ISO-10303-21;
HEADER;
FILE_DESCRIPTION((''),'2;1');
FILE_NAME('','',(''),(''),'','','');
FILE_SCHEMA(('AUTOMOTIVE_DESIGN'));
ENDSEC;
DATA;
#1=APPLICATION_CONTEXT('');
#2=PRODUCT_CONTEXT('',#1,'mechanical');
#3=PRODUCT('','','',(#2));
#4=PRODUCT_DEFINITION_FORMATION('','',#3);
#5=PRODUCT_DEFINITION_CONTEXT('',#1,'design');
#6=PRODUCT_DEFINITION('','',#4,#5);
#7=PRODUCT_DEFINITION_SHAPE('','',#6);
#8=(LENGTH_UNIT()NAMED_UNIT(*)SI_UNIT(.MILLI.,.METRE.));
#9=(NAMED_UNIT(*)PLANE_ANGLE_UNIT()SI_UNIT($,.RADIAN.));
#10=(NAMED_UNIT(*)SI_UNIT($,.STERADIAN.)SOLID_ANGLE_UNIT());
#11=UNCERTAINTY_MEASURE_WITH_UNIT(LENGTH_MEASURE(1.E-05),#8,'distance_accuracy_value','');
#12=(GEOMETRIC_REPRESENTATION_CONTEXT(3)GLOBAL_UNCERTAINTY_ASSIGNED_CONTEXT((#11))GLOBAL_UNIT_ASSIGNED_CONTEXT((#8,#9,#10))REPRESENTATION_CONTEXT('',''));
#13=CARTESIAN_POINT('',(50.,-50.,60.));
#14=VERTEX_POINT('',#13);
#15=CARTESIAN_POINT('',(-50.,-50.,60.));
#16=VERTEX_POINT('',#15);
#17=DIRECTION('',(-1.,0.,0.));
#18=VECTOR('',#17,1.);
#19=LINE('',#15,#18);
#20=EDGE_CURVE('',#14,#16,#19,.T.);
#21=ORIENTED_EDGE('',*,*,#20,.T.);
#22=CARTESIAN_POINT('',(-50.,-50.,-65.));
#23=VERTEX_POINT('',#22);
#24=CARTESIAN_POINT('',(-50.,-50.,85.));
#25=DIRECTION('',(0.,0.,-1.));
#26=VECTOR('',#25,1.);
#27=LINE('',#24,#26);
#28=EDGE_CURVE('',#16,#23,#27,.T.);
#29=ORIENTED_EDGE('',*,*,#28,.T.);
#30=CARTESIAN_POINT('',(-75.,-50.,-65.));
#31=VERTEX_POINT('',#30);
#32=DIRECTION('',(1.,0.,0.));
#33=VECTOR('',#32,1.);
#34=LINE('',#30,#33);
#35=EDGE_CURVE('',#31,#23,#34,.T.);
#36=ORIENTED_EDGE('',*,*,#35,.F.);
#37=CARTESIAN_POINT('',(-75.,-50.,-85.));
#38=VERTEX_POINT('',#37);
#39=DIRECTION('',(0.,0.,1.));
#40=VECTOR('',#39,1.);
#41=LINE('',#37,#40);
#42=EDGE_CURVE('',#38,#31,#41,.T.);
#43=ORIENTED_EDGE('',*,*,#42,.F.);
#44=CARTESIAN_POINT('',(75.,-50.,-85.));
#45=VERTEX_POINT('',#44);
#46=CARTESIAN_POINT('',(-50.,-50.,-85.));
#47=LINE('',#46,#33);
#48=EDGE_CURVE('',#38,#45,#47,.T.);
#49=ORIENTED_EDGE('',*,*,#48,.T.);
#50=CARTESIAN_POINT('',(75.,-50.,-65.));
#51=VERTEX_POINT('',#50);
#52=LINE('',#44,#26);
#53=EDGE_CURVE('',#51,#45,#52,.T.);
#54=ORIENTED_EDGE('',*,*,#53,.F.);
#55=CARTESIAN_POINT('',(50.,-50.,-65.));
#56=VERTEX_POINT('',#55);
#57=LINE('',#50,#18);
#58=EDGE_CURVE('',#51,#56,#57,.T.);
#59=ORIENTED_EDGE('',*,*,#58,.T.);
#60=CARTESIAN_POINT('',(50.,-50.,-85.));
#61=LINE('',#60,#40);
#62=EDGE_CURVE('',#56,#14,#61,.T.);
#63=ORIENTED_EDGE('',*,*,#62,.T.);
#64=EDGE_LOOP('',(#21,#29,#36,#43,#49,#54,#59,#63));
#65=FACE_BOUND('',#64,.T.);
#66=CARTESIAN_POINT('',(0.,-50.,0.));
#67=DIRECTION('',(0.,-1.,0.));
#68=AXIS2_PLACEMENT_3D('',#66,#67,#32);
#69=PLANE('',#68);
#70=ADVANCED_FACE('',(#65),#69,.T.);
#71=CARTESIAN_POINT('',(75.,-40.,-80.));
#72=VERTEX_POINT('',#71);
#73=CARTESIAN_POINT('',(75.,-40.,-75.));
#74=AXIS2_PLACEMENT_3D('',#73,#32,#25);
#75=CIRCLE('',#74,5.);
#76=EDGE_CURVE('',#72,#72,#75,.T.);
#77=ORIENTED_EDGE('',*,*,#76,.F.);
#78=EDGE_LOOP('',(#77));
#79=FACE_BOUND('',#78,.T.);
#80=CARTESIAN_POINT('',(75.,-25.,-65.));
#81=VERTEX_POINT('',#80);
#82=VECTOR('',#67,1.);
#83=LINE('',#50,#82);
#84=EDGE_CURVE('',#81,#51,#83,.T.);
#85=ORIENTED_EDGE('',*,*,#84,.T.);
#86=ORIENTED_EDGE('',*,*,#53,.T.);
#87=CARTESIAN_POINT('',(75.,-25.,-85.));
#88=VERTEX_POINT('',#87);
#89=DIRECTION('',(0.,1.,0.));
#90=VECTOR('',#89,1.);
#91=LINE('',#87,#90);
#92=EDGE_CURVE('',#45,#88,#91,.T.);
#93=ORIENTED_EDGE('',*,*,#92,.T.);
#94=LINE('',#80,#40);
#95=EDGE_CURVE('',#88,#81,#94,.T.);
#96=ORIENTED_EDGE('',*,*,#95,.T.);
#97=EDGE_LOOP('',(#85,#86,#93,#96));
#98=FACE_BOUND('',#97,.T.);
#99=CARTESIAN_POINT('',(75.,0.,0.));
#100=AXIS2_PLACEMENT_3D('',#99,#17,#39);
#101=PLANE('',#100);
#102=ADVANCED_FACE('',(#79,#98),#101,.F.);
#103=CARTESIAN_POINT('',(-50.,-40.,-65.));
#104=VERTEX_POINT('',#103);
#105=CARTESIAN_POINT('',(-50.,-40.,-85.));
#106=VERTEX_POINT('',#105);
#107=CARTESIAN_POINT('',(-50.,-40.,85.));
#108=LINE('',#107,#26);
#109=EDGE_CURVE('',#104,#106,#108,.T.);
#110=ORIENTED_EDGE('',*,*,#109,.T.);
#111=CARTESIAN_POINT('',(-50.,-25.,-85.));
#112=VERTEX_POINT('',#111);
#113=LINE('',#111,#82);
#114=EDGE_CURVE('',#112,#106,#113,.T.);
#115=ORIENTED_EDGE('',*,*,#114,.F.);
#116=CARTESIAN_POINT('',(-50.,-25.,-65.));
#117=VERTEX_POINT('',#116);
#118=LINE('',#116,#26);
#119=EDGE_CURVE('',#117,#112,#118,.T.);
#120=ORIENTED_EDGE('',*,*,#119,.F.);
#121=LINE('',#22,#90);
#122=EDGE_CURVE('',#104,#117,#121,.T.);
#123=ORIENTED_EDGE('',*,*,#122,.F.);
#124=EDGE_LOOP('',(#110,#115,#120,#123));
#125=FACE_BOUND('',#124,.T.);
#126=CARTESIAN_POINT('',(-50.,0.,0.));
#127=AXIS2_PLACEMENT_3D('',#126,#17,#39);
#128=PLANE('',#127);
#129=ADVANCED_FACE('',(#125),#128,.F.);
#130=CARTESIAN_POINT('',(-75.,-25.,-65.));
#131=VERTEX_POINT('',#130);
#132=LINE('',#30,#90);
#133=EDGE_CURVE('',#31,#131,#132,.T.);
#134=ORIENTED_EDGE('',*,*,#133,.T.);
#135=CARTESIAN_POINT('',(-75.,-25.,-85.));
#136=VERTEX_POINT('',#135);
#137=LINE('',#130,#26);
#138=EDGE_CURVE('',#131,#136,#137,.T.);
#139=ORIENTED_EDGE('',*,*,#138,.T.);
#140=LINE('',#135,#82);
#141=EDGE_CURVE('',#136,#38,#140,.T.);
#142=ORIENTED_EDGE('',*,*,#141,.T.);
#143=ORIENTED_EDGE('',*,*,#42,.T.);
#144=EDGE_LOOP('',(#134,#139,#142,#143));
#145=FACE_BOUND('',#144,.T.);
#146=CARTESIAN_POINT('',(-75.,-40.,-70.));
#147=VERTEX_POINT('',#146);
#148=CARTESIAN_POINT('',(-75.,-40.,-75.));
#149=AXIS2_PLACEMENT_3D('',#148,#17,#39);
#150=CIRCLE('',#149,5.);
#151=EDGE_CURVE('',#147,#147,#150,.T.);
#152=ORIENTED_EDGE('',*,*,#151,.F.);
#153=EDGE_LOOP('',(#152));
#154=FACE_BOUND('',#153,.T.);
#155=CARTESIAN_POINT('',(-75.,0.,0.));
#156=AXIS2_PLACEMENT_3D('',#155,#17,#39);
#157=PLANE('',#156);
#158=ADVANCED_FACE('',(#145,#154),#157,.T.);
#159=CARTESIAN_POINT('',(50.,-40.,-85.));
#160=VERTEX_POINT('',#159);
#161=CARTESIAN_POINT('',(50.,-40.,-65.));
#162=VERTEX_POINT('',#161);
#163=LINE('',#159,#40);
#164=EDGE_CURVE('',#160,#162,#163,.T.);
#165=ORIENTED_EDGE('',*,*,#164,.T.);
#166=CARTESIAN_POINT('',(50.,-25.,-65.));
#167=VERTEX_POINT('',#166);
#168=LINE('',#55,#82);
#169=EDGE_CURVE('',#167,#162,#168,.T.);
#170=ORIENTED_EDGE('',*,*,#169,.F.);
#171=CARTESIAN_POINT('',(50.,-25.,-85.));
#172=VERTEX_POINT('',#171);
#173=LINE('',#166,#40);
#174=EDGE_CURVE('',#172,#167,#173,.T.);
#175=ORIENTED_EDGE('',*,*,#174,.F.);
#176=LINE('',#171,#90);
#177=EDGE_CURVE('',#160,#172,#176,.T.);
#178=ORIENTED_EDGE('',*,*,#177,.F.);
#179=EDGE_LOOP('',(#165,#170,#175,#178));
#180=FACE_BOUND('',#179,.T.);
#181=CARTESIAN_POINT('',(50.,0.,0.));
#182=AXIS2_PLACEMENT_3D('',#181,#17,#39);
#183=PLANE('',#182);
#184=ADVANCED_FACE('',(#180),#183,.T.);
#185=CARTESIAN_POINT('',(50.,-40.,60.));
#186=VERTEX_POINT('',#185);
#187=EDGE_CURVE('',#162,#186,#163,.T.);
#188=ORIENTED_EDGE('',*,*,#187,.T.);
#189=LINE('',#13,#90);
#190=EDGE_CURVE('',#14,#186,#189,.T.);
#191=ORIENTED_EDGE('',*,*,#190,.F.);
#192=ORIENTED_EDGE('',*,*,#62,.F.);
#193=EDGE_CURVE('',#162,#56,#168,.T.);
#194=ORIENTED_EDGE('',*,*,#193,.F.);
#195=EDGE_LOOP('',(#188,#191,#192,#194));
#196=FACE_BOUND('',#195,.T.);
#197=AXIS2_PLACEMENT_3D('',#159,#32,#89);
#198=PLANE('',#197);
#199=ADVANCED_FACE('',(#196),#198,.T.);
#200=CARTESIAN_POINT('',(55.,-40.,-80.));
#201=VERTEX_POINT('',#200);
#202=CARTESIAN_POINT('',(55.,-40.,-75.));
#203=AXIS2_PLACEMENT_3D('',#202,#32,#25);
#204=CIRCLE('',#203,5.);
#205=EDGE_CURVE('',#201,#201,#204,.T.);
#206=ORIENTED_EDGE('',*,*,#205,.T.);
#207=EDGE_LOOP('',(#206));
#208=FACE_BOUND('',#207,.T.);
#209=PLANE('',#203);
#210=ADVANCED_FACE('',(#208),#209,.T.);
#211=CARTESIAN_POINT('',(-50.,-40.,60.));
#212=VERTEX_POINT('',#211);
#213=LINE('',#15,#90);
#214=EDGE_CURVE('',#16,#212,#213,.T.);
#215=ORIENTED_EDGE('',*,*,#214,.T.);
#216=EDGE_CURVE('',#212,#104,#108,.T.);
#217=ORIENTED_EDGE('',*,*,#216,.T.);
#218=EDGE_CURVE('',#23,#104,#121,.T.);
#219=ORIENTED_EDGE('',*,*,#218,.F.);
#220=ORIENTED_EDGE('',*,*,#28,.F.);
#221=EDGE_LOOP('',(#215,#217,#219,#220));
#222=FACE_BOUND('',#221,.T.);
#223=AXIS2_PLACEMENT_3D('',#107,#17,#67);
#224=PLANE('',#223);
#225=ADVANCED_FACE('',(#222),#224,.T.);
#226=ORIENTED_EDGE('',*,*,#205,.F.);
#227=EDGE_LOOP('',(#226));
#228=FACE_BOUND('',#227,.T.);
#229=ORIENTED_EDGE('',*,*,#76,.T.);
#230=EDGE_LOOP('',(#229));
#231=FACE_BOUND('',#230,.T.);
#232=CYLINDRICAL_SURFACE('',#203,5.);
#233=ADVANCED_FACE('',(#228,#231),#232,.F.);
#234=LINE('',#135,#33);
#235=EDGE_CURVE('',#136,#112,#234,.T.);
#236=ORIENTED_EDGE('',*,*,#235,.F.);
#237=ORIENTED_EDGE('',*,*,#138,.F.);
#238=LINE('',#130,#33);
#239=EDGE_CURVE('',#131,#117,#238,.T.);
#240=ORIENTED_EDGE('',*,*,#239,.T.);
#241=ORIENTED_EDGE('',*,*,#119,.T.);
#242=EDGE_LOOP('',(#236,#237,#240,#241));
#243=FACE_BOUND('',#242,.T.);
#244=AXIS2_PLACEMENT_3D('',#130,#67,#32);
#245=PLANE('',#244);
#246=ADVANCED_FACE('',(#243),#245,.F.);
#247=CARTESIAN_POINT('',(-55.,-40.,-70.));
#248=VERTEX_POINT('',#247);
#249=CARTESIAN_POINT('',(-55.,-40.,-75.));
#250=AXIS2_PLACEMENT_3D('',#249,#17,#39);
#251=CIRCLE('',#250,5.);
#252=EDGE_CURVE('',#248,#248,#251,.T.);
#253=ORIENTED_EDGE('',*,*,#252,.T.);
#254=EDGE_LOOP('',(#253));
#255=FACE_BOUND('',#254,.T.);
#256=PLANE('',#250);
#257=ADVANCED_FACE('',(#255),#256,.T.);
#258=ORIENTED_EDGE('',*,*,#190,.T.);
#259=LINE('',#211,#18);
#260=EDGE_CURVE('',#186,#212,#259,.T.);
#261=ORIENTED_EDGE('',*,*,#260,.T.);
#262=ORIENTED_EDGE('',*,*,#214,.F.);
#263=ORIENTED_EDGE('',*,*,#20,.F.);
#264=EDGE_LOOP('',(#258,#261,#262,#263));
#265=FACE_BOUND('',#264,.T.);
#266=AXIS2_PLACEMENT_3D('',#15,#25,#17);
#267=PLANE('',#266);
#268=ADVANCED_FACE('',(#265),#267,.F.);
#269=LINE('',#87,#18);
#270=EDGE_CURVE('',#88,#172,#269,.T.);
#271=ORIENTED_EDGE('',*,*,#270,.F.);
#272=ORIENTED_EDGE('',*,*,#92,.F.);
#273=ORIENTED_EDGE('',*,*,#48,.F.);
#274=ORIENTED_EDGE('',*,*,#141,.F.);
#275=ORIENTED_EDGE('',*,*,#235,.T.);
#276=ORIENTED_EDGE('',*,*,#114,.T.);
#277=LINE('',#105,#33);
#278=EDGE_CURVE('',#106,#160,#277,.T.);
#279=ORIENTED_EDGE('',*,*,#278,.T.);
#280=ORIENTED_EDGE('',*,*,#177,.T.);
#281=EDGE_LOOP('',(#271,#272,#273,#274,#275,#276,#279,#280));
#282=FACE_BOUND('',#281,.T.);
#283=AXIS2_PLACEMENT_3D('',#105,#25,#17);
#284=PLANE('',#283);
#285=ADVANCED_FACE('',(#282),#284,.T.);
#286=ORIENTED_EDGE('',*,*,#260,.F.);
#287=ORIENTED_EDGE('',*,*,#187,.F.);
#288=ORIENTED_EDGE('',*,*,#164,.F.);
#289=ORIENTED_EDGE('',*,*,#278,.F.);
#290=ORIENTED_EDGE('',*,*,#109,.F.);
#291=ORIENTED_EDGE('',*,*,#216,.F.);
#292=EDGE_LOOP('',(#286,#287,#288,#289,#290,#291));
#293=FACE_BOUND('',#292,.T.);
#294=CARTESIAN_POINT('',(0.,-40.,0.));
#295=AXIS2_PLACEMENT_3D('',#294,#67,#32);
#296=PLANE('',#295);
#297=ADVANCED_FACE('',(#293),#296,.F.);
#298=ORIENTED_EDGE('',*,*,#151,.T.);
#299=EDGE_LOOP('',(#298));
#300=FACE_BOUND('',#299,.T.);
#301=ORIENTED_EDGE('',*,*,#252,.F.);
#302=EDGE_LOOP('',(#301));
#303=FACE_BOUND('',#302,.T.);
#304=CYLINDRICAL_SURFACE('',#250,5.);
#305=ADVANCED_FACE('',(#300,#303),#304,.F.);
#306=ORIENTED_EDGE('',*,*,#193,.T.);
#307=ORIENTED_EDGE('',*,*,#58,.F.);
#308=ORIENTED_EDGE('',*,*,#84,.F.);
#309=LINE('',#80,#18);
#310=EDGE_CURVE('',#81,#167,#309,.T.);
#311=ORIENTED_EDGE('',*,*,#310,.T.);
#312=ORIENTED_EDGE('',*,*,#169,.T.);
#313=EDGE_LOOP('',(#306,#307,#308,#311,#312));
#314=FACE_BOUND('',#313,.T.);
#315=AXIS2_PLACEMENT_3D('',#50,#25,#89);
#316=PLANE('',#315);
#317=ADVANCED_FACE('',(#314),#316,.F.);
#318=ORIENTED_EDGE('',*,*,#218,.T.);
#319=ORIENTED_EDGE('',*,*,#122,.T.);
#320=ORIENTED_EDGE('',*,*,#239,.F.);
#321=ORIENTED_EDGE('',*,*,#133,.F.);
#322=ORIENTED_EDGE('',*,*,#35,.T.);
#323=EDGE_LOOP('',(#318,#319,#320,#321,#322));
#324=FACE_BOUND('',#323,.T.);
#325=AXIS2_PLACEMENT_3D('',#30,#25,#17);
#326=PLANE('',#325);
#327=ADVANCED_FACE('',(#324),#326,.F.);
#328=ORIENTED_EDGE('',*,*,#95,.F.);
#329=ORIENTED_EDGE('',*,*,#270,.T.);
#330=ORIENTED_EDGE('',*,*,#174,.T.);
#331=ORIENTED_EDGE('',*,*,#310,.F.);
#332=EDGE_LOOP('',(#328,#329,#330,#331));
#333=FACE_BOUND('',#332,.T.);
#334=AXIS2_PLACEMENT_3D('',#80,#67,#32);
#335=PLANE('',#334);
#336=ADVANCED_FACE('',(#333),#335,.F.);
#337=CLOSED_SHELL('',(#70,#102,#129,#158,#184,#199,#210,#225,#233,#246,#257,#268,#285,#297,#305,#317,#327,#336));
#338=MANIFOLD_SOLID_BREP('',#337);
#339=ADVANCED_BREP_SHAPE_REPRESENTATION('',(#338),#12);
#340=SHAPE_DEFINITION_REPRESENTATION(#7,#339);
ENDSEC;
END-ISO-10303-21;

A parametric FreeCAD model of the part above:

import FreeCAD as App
import Part
import Sketcher
Q = App.Units.Quantity

doc = App.newDocument("Part")
body = doc.addObject("PartDesign::Body", "Body")

# Sketch on XZ plane
sketch1 = doc.addObject("Sketcher::SketchObject", "Sketch")
body.addObject(sketch1)
sketch1.AttachmentSupport = (doc.XZ_Plane, [""])
sketch1.MapMode = "FlatFace"
sketch1.AttachmentOffset = App.Placement(App.Vector(0, 0, 50), App.Rotation())
sketch1.addGeometry(Part.LineSegment(App.Vector(50, -85, 0), App.Vector(50, 85, 0)), False)
sketch1.addGeometry(Part.LineSegment(App.Vector(50, 85, 0), App.Vector(-50, 85, 0)), False)
sketch1.addGeometry(Part.LineSegment(App.Vector(-50, 85, 0), App.Vector(-50, -85, 0)), False)
sketch1.addGeometry(Part.LineSegment(App.Vector(-50, -85, 0), App.Vector(50, -85, 0)), False)
sketch1.addConstraint(Sketcher.Constraint("Coincident", 0, 2, 1, 1))
sketch1.addConstraint(Sketcher.Constraint("Coincident", 1, 2, 2, 1))
sketch1.addConstraint(Sketcher.Constraint("Coincident", 2, 2, 3, 1))
sketch1.addConstraint(Sketcher.Constraint("Coincident", 3, 2, 0, 1))
sketch1.addConstraint(Sketcher.Constraint("Vertical", 0))
sketch1.addConstraint(Sketcher.Constraint("Horizontal", 1))
sketch1.addConstraint(Sketcher.Constraint("Vertical", 2))
sketch1.addConstraint(Sketcher.Constraint("Horizontal", 3))
sketch1.addConstraint(Sketcher.Constraint("Symmetric", 0, 2, 2, 2, -1, 1))
sketch1.addConstraint(Sketcher.Constraint("DistanceX", 1, 2, 1, 1, Q("100 mm")))
sketch1.addConstraint(Sketcher.Constraint("DistanceY", 0, 1, 0, 2, Q("170 mm")))
pad1 = doc.addObject("PartDesign::Pad", "Pad")
body.addObject(pad1)
pad1.Profile = sketch1
pad1.Length = 10
pad1.Reversed = True

# Sketch on YZ plane
sketch2 = doc.addObject("Sketcher::SketchObject", "Sketch001")
body.addObject(sketch2)
sketch2.AttachmentSupport = (doc.YZ_Plane, [""])
sketch2.MapMode = "FlatFace"
sketch2.AttachmentOffset = App.Placement(App.Vector(0, 0, -50), App.Rotation())
sketch2.addGeometry(Part.LineSegment(App.Vector(-25, -85, 0), App.Vector(-50, -85, 0)), False)
sketch2.addGeometry(Part.LineSegment(App.Vector(-50, -85, 0), App.Vector(-50, -65, 0)), False)
sketch2.addGeometry(Part.LineSegment(App.Vector(-50, -65, 0), App.Vector(-25, -65, 0)), False)
sketch2.addGeometry(Part.LineSegment(App.Vector(-25, -65, 0), App.Vector(-25, -85, 0)), False)
sketch2.addConstraint(Sketcher.Constraint("Coincident", 0, 2, 1, 1))
sketch2.addConstraint(Sketcher.Constraint("Coincident", 1, 2, 2, 1))
sketch2.addConstraint(Sketcher.Constraint("Coincident", 2, 2, 3, 1))
sketch2.addConstraint(Sketcher.Constraint("Coincident", 3, 2, 0, 1))
sketch2.addConstraint(Sketcher.Constraint("Horizontal", 0))
sketch2.addConstraint(Sketcher.Constraint("Vertical", 1))
sketch2.addConstraint(Sketcher.Constraint("Horizontal", 2))
sketch2.addConstraint(Sketcher.Constraint("Vertical", 3))
sketch2.addConstraint(Sketcher.Constraint("DistanceX", 0, 2, 0, 1, Q("25 mm")))
sketch2.addConstraint(Sketcher.Constraint("DistanceY", 1, 1, 1, 2, Q("20 mm")))
sketch2.addConstraint(Sketcher.Constraint("DistanceX", 0, 2, -1, 1, Q("50 mm")))
sketch2.addConstraint(Sketcher.Constraint("DistanceY", 0, 2, -1, 1, Q("85 mm")))
pad2 = doc.addObject("PartDesign::Pad", "Pad001")
body.addObject(pad2)
pad2.Profile = sketch2
pad2.Length = 25
pad2.Reversed = True

# Sketch on YZ plane
sketch3 = doc.addObject("Sketcher::SketchObject", "Sketch002")
body.addObject(sketch3)
sketch3.AttachmentSupport = (doc.YZ_Plane, [""])
sketch3.MapMode = "FlatFace"
sketch3.AttachmentOffset = App.Placement(App.Vector(0, 0, 50), App.Rotation())
sketch3.addGeometry(Part.LineSegment(App.Vector(-25, -65, 0), App.Vector(-50, -65, 0)), False)
sketch3.addGeometry(Part.LineSegment(App.Vector(-50, -65, 0), App.Vector(-50, -85, 0)), False)
sketch3.addGeometry(Part.LineSegment(App.Vector(-50, -85, 0), App.Vector(-25, -85, 0)), False)
sketch3.addGeometry(Part.LineSegment(App.Vector(-25, -85, 0), App.Vector(-25, -65, 0)), False)
sketch3.addConstraint(Sketcher.Constraint("Coincident", 0, 2, 1, 1))
sketch3.addConstraint(Sketcher.Constraint("Coincident", 1, 2, 2, 1))
sketch3.addConstraint(Sketcher.Constraint("Coincident", 2, 2, 3, 1))
sketch3.addConstraint(Sketcher.Constraint("Coincident", 3, 2, 0, 1))
sketch3.addConstraint(Sketcher.Constraint("Horizontal", 0))
sketch3.addConstraint(Sketcher.Constraint("Vertical", 1))
sketch3.addConstraint(Sketcher.Constraint("Horizontal", 2))
sketch3.addConstraint(Sketcher.Constraint("Vertical", 3))
sketch3.addConstraint(Sketcher.Constraint("DistanceX", 0, 2, 0, 1, Q("25 mm")))
sketch3.addConstraint(Sketcher.Constraint("DistanceY", 1, 2, 1, 1, Q("20 mm")))
sketch3.addConstraint(Sketcher.Constraint("DistanceX", 0, 2, -1, 1, Q("50 mm")))
sketch3.addConstraint(Sketcher.Constraint("DistanceY", 0, 2, -1, 1, Q("65 mm")))
pad3 = doc.addObject("PartDesign::Pad", "Pad002")
body.addObject(pad3)
pad3.Profile = sketch3
pad3.Length = 25

# Sketch on YZ plane
sketch4 = doc.addObject("Sketcher::SketchObject", "Sketch003")
body.addObject(sketch4)
sketch4.AttachmentSupport = (doc.YZ_Plane, [""])
sketch4.MapMode = "FlatFace"
sketch4.AttachmentOffset = App.Placement(App.Vector(0, 0, -75), App.Rotation())
sketch4.addGeometry(Part.Circle(App.Vector(-40, -75, 0), App.Vector(0, 0, 1), 5), False)
sketch4.addConstraint(Sketcher.Constraint("Diameter", 0, Q("10 mm")))
sketch4.addConstraint(Sketcher.Constraint("DistanceX", 0, 3, -1, 1, Q("40 mm")))
sketch4.addConstraint(Sketcher.Constraint("DistanceY", 0, 3, -1, 1, Q("75 mm")))
pocket1 = doc.addObject("PartDesign::Pocket", "Pocket")
body.addObject(pocket1)
pocket1.Profile = sketch4
pocket1.Length = 20
pocket1.Reversed = True

# Sketch on YZ plane
sketch5 = doc.addObject("Sketcher::SketchObject", "Sketch004")
body.addObject(sketch5)
sketch5.AttachmentSupport = (doc.YZ_Plane, [""])
sketch5.MapMode = "FlatFace"
sketch5.AttachmentOffset = App.Placement(App.Vector(0, 0, 55), App.Rotation())
sketch5.addGeometry(Part.Circle(App.Vector(-40, -75, 0), App.Vector(0, 0, 1), 5), False)
sketch5.addConstraint(Sketcher.Constraint("Diameter", 0, Q("10 mm")))
sketch5.addConstraint(Sketcher.Constraint("DistanceX", 0, 3, -1, 1, Q("40 mm")))
sketch5.addConstraint(Sketcher.Constraint("DistanceY", 0, 3, -1, 1, Q("75 mm")))
pocket2 = doc.addObject("PartDesign::Pocket", "Pocket001")
body.addObject(pocket2)
pocket2.Profile = sketch5
pocket2.Length = 20
pocket2.Reversed = True

# Sketch on XY plane
sketch6 = doc.addObject("Sketcher::SketchObject", "Sketch005")
body.addObject(sketch6)
sketch6.AttachmentSupport = (doc.XY_Plane, [""])
sketch6.MapMode = "FlatFace"
sketch6.AttachmentOffset = App.Placement(App.Vector(0, 0, 85), App.Rotation())
sketch6.addGeometry(Part.LineSegment(App.Vector(-50, -40, 0), App.Vector(-50, -50, 0)), False)
sketch6.addGeometry(Part.LineSegment(App.Vector(-50, -50, 0), App.Vector(50, -50, 0)), False)
sketch6.addGeometry(Part.LineSegment(App.Vector(50, -50, 0), App.Vector(50, -40, 0)), False)
sketch6.addGeometry(Part.LineSegment(App.Vector(50, -40, 0), App.Vector(-50, -40, 0)), False)
sketch6.addConstraint(Sketcher.Constraint("Coincident", 0, 2, 1, 1))
sketch6.addConstraint(Sketcher.Constraint("Coincident", 1, 2, 2, 1))
sketch6.addConstraint(Sketcher.Constraint("Coincident", 2, 2, 3, 1))
sketch6.addConstraint(Sketcher.Constraint("Coincident", 3, 2, 0, 1))
sketch6.addConstraint(Sketcher.Constraint("Vertical", 0))
sketch6.addConstraint(Sketcher.Constraint("Horizontal", 1))
sketch6.addConstraint(Sketcher.Constraint("Vertical", 2))
sketch6.addConstraint(Sketcher.Constraint("Horizontal", 3))
sketch6.addConstraint(Sketcher.Constraint("DistanceX", 1, 1, 1, 2, Q("100 mm")))
sketch6.addConstraint(Sketcher.Constraint("DistanceY", 0, 2, 0, 1, Q("10 mm")))
sketch6.addConstraint(Sketcher.Constraint("DistanceX", 0, 2, -1, 1, Q("50 mm")))
sketch6.addConstraint(Sketcher.Constraint("DistanceY", 0, 2, -1, 1, Q("50 mm")))
pad4 = doc.addObject("PartDesign::Pad", "Pad003")
body.addObject(pad4)
pad4.Profile = sketch6
pad4.Length = 100

# Sketch on XZ plane
sketch7 = doc.addObject("Sketcher::SketchObject", "Sketch006")
body.addObject(sketch7)
sketch7.AttachmentSupport = (doc.XZ_Plane, [""])
sketch7.MapMode = "FlatFace"
sketch7.AttachmentOffset = App.Placement(App.Vector(0, 0, 40), App.Rotation())
sketch7.addGeometry(Part.LineSegment(App.Vector(-50, 60, 0), App.Vector(-50, 185, 0)), False)
sketch7.addGeometry(Part.LineSegment(App.Vector(-50, 185, 0), App.Vector(50, 185, 0)), False)
sketch7.addGeometry(Part.LineSegment(App.Vector(50, 185, 0), App.Vector(50, 60, 0)), False)
sketch7.addGeometry(Part.LineSegment(App.Vector(50, 60, 0), App.Vector(-50, 60, 0)), False)
sketch7.addConstraint(Sketcher.Constraint("Coincident", 0, 2, 1, 1))
sketch7.addConstraint(Sketcher.Constraint("Coincident", 1, 2, 2, 1))
sketch7.addConstraint(Sketcher.Constraint("Coincident", 2, 2, 3, 1))
sketch7.addConstraint(Sketcher.Constraint("Coincident", 3, 2, 0, 1))
sketch7.addConstraint(Sketcher.Constraint("Vertical", 0))
sketch7.addConstraint(Sketcher.Constraint("Horizontal", 1))
sketch7.addConstraint(Sketcher.Constraint("Vertical", 2))
sketch7.addConstraint(Sketcher.Constraint("Horizontal", 3))
sketch7.addConstraint(Sketcher.Constraint("DistanceX", 1, 1, 1, 2, Q("100 mm")))
sketch7.addConstraint(Sketcher.Constraint("DistanceY", 0, 1, 0, 2, Q("125 mm")))
sketch7.addConstraint(Sketcher.Constraint("DistanceX", 0, 2, -1, 1, Q("50 mm")))
sketch7.addConstraint(Sketcher.Constraint("DistanceY", -1, 1, 0, 2, Q("185 mm")))
pocket3 = doc.addObject("PartDesign::Pocket", "Pocket002")
body.addObject(pocket3)
pocket3.Profile = sketch7
pocket3.Length = 10
pocket3.Reversed = True

doc.recompute()
